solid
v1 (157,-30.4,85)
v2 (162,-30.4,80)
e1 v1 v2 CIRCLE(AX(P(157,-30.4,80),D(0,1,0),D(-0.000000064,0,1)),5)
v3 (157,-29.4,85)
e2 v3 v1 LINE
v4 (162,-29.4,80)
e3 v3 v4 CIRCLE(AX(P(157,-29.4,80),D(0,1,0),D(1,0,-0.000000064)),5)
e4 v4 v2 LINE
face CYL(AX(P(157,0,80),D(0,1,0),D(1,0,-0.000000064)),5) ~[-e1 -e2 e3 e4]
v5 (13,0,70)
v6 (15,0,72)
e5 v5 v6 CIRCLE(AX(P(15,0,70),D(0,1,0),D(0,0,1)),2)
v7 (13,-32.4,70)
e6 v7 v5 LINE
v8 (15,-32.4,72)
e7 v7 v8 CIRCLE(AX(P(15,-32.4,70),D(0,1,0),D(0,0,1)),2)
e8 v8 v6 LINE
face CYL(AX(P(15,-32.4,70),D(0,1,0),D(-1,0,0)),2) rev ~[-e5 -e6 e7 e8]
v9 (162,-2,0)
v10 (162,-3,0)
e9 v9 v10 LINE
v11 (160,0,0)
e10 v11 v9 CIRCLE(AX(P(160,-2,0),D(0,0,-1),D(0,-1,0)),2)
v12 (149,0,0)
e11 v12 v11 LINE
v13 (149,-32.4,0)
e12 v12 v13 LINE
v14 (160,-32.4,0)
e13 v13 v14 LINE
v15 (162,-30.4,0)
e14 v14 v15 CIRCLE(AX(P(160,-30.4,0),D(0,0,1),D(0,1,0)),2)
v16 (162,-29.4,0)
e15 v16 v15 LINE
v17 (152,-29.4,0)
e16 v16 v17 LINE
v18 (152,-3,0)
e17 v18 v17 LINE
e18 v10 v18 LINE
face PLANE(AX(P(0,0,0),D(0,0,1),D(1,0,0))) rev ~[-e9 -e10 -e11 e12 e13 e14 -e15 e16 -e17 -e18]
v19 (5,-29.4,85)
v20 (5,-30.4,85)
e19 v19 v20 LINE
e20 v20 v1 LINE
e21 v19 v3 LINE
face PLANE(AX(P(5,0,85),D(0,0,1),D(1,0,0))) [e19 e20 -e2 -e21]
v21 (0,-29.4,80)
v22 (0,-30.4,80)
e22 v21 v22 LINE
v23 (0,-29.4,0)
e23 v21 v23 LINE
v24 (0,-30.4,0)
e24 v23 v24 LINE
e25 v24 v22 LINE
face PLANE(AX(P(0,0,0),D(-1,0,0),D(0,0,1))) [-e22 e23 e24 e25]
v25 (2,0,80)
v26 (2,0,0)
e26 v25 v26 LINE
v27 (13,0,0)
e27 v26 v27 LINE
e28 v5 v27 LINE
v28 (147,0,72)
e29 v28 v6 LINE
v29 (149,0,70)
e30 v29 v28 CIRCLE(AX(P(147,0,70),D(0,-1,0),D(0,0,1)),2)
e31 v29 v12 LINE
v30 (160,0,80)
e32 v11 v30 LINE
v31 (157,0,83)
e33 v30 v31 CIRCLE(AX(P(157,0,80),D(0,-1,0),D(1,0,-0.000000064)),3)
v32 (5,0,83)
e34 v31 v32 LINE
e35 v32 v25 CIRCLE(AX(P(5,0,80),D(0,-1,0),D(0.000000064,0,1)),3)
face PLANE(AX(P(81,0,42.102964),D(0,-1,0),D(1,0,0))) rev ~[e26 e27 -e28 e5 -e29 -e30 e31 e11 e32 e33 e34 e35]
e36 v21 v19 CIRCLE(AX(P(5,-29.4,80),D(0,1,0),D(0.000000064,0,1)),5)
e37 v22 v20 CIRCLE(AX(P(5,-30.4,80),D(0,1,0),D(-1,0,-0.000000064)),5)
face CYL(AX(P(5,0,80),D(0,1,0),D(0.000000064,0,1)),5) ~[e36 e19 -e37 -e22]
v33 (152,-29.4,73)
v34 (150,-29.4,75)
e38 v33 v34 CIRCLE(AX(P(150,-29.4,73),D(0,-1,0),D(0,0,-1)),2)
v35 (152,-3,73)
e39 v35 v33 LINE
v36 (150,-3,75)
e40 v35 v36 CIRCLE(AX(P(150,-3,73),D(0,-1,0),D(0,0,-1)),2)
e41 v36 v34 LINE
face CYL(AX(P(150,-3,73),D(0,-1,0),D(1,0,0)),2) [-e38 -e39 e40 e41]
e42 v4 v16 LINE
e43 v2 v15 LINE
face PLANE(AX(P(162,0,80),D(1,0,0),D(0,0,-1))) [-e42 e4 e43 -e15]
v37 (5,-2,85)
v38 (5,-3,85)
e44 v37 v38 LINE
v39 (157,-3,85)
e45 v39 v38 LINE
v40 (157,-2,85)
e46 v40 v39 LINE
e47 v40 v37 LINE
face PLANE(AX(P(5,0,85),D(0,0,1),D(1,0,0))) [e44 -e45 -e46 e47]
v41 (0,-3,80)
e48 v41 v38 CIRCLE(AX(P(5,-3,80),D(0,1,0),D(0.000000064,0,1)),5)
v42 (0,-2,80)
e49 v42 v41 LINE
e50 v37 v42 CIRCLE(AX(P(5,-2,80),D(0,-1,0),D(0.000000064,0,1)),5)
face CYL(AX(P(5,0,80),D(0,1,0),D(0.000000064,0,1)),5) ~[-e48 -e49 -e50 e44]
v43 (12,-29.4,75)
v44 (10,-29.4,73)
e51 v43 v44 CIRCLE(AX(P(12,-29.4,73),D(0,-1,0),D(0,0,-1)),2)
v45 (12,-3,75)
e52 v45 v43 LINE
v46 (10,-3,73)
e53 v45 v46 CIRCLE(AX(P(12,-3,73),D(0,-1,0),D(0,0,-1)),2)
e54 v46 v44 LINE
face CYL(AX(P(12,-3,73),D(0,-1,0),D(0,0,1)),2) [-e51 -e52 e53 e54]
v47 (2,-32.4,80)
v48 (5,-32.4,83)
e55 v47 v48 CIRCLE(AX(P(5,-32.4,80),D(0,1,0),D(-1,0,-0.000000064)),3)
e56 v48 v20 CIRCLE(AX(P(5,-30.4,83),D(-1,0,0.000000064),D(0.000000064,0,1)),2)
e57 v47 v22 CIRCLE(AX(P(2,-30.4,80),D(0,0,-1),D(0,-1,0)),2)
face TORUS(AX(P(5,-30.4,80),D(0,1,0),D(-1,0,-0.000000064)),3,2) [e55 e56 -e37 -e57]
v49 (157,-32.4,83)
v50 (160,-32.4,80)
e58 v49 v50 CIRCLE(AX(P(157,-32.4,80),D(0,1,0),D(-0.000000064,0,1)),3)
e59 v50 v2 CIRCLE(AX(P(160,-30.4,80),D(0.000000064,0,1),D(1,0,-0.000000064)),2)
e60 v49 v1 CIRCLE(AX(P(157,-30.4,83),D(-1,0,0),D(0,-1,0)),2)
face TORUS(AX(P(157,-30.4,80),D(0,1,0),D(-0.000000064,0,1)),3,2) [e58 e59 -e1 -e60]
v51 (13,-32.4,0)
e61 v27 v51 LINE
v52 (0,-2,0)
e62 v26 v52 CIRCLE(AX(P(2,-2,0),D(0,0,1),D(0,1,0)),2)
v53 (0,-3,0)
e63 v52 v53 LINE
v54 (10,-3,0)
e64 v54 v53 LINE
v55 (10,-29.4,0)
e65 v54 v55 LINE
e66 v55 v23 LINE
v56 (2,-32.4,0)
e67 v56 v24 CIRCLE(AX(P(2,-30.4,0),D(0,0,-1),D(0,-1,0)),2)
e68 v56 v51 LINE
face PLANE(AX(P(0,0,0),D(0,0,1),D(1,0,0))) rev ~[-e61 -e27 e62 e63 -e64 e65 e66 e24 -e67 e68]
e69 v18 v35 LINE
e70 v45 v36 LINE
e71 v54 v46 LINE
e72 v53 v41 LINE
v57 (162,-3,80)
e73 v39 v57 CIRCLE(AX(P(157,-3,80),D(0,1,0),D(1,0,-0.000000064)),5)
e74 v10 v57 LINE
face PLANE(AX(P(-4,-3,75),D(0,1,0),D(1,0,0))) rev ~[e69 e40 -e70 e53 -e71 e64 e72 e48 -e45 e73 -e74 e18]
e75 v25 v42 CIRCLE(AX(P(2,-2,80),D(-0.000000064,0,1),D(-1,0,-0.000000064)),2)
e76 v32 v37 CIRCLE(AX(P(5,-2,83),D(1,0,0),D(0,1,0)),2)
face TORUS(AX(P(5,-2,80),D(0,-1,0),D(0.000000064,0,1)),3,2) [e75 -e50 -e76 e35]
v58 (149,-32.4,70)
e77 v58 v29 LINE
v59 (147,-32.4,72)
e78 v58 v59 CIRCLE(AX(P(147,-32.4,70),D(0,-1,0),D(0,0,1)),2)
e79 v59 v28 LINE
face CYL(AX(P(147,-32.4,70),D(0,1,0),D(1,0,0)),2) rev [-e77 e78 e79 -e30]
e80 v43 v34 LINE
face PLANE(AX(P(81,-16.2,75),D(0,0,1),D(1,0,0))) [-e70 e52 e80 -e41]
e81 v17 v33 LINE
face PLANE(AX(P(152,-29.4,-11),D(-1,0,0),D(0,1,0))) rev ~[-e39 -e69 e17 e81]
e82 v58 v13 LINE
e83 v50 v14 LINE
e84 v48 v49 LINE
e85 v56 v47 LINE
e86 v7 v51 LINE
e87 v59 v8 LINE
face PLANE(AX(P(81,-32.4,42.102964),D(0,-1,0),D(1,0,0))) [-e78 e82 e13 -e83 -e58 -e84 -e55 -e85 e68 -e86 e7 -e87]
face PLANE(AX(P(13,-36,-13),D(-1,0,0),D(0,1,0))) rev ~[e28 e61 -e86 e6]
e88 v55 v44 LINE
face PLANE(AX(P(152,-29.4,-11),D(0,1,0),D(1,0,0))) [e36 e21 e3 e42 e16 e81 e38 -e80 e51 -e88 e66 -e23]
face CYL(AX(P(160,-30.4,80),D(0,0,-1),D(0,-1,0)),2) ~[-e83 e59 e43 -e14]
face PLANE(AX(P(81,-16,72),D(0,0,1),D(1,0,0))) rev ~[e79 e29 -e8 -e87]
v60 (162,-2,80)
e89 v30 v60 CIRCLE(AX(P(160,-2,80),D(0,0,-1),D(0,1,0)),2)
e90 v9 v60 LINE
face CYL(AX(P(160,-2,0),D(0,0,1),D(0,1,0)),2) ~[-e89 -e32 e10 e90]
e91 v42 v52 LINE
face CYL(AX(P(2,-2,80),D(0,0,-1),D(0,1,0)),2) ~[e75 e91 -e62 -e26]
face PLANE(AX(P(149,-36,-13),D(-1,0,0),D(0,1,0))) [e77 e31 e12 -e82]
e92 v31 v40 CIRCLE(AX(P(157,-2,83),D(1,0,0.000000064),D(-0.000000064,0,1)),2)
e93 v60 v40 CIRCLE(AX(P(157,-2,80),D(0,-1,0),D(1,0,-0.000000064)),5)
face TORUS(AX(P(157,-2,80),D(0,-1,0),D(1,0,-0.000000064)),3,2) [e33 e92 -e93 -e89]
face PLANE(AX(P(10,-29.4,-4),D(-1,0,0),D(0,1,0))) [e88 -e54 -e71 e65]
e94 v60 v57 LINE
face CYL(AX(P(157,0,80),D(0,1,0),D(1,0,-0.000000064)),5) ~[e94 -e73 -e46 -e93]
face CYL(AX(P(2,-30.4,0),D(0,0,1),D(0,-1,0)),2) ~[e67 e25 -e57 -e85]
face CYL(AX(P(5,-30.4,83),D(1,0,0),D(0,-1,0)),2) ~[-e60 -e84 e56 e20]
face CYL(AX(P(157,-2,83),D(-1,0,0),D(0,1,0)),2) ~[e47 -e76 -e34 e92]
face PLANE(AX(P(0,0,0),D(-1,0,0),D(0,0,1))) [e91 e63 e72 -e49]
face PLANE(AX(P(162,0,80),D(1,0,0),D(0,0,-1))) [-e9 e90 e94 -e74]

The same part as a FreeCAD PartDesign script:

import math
import FreeCAD as App
import Part
import Sketcher
Q = App.Units.Quantity


def edges_at(feature, points):
    """Names of the edges that pass closest to the given points."""
    edges = feature.Shape.Edges
    near = lambda p: min(range(len(edges)), key=lambda i: edges[i].distToShape(Part.Vertex(*p))[0])
    return sorted({f"Edge{near(p) + 1}" for p in points})


def add_polygon(sketch, points):
    """Adds a closed chain of lines whose ends are joined by coincident constraints."""
    first, n = sketch.GeometryCount, len(points)
    for a, b in zip(points, points[1:] + points[:1]):
        sketch.addGeometry(Part.LineSegment(App.Vector(*a, 0), App.Vector(*b, 0)), False)
    for i in range(n):
        sketch.addConstraint(Sketcher.Constraint("Coincident", first + i, 2, first + (i + 1) % n, 1))

doc = App.newDocument("Part")
body = doc.addObject("PartDesign::Body", "Body")

# Sketch on XY plane
sketch1 = body.newObject("Sketcher::SketchObject", "Sketch")
sketch1.AttachmentSupport = (doc.getObject("XY_Plane"), [""])
sketch1.MapMode = "FlatFace"
sketch1.AttachmentOffset = App.Placement(App.Vector(0, 0, -13), App.Rotation())
add_polygon(sketch1, [(13, 4), (13, -36), (149, -36), (149, 4)])  # lines 0-3
sketch1.addConstraint([
    Sketcher.Constraint("Vertical", 0),
    Sketcher.Constraint("Horizontal", 1),
    Sketcher.Constraint("Vertical", 2),
    Sketcher.Constraint("Horizontal", 3),
    Sketcher.Constraint("DistanceX", 1, 1, 1, 2, Q("136 mm")),
    Sketcher.Constraint("DistanceY", 0, 2, 0, 1, Q("40 mm")),
    Sketcher.Constraint("DistanceX", -1, 1, 0, 2, Q("13 mm")),
    Sketcher.Constraint("DistanceY", 0, 2, -1, 1, Q("36 mm")),
])
pad1 = body.newObject("PartDesign::Pad", "Pad")
pad1.Profile = sketch1
pad1.Length = 85
body2 = doc.addObject("PartDesign::Body", "Body001")

# Sketch on XY plane
sketch2 = body2.newObject("Sketcher::SketchObject", "Sketch001")
sketch2.AttachmentSupport = (doc.getObject("XY_Plane001"), [""])
sketch2.MapMode = "FlatFace"
sketch2.AttachmentOffset = App.Placement(App.Vector(0, 0, -11), App.Rotation())
add_polygon(sketch2, [(152, -3), (152, -29), (172, -29), (172, -3)])  # lines 0-3
sketch2.addConstraint([
    Sketcher.Constraint("Vertical", 0),
    Sketcher.Constraint("Horizontal", 1),
    Sketcher.Constraint("Vertical", 2),
    Sketcher.Constraint("Horizontal", 3),
    Sketcher.Constraint("DistanceX", 1, 1, 1, 2, Q("20 mm")),
    Sketcher.Constraint("DistanceY", 0, 2, 0, 1, Q("26.4 mm")),
    Sketcher.Constraint("DistanceX", -1, 1, 0, 2, Q("152 mm")),
    Sketcher.Constraint("DistanceY", 2, 2, -1, 1, Q("3 mm")),
])
pad2 = body2.newObject("PartDesign::Pad", "Pad001")
pad2.Profile = sketch2
pad2.Length = 100
body3 = doc.addObject("PartDesign::Body", "Body002")

# Sketch on XY plane
sketch3 = body3.newObject("Sketcher::SketchObject", "Sketch002")
sketch3.AttachmentSupport = (doc.getObject("XY_Plane002"), [""])
sketch3.MapMode = "FlatFace"
sketch3.AttachmentOffset = App.Placement(App.Vector(0, 0, -4), App.Rotation())
add_polygon(sketch3, [(-10, -3), (-10, -29), (10, -29), (10, -3)])  # lines 0-3
sketch3.addConstraint([
    Sketcher.Constraint("Vertical", 0),
    Sketcher.Constraint("Horizontal", 1),
    Sketcher.Constraint("Vertical", 2),
    Sketcher.Constraint("Horizontal", 3),
    Sketcher.Constraint("DistanceX", 1, 1, 1, 2, Q("20 mm")),
    Sketcher.Constraint("DistanceY", 0, 2, 0, 1, Q("26.4 mm")),
    Sketcher.Constraint("DistanceX", 0, 2, -1, 1, Q("10 mm")),
    Sketcher.Constraint("DistanceY", 2, 2, -1, 1, Q("3 mm")),
])
pad3 = body3.newObject("PartDesign::Pad", "Pad002")
pad3.Profile = sketch3
pad3.Length = 92
body4 = doc.addObject("PartDesign::Body", "Body003")

# Sketch on XY plane
sketch4 = body4.newObject("Sketcher::SketchObject", "Sketch003")
sketch4.AttachmentSupport = (doc.getObject("XY_Plane003"), [""])
sketch4.MapMode = "FlatFace"
sketch4.AttachmentOffset = App.Placement(App.Vector(0, 0, 75), App.Rotation())
add_polygon(sketch4, [(-4, -3), (-4, -29), (166, -29), (166, -3)])  # lines 0-3
sketch4.addConstraint([
    Sketcher.Constraint("Vertical", 0),
    Sketcher.Constraint("Horizontal", 1),
    Sketcher.Constraint("Vertical", 2),
    Sketcher.Constraint("Horizontal", 3),
    Sketcher.Constraint("DistanceX", 1, 1, 1, 2, Q("170 mm")),
    Sketcher.Constraint("DistanceY", 0, 2, 0, 1, Q("26.4 mm")),
    Sketcher.Constraint("DistanceX", 0, 2, -1, 1, Q("4 mm")),
    Sketcher.Constraint("DistanceY", 2, 2, -1, 1, Q("3 mm")),
])
pad4 = body4.newObject("PartDesign::Pad", "Pad003")
pad4.Profile = sketch4
pad4.Length = 20
body5 = doc.addObject("PartDesign::Body", "Body004")

# Sketch on XZ plane
sketch5 = body5.newObject("Sketcher::SketchObject", "Sketch004")
sketch5.AttachmentSupport = (doc.getObject("XZ_Plane004"), [""])
sketch5.MapMode = "FlatFace"
sketch5.addGeometry([
    Part.ArcOfCircle(Part.Circle(App.Vector(5, 80, 0), App.Vector(0, 0, 1), 5), math.radians(90), math.radians(180)),  # 0
    Part.LineSegment(App.Vector(0, 80, 0), App.Vector(0, 0, 0)),  # 1
    Part.LineSegment(App.Vector(0, 0, 0), App.Vector(162, 0, 0)),  # 2
    Part.LineSegment(App.Vector(162, 0, 0), App.Vector(162, 80, 0)),  # 3
    Part.ArcOfCircle(Part.Circle(App.Vector(157, 80, 0), App.Vector(0, 0, 1), 5), math.radians(0), math.radians(90)),  # 4
    Part.LineSegment(App.Vector(157, 85, 0), App.Vector(5, 85, 0)),  # 5
], False)
sketch5.addConstraint([
    Sketcher.Constraint("Tangent", 0, 2, 1, 1),
    Sketcher.Constraint("Coincident", 1, 2, 2, 1),
    Sketcher.Constraint("Coincident", 2, 2, 3, 1),
    Sketcher.Constraint("Tangent", 3, 2, 4, 1),
    Sketcher.Constraint("Tangent", 4, 2, 5, 1),
    Sketcher.Constraint("Tangent", 5, 2, 0, 1),
    Sketcher.Constraint("Vertical", 1),
    Sketcher.Constraint("Horizontal", 2),
    Sketcher.Constraint("Vertical", 3),
    Sketcher.Constraint("Horizontal", 5),
    Sketcher.Constraint("Coincident", 1, 2, -1, 1),
    Sketcher.Constraint("Equal", 0, 4),
    Sketcher.Constraint("Radius", 0, Q("5 mm")),
    Sketcher.Constraint("DistanceX", 2, 1, 2, 2, Q("162 mm")),
    Sketcher.Constraint("DistanceY", 1, 2, 1, 1, Q("80 mm")),
])
pad5 = body5.newObject("PartDesign::Pad", "Pad004")
pad5.Profile = sketch5
pad5.Length = 32.4
doc.recompute()

boolean = body5.newObject("PartDesign::Boolean", "Boolean")
boolean.Type = "Cut"
boolean.addObjects([body4])
doc.recompute()

boolean2 = body5.newObject("PartDesign::Boolean", "Boolean001")
boolean2.Type = "Cut"
boolean2.addObjects([body3])
doc.recompute()

boolean3 = body5.newObject("PartDesign::Boolean", "Boolean002")
boolean3.Type = "Cut"
boolean3.addObjects([body2])
doc.recompute()

boolean4 = body5.newObject("PartDesign::Boolean", "Boolean003")
boolean4.Type = "Cut"
boolean4.addObjects([body])
doc.recompute()

fillet = body5.newObject("PartDesign::Fillet", "Fillet")
fillet.Base = (boolean4, edges_at(boolean4, [(152, -16.2, 75)]))
fillet.Radius = 2
doc.recompute()

fillet2 = body5.newObject("PartDesign::Fillet", "Fillet001")
fillet2.Base = (fillet, edges_at(fillet, [(10, -16.2, 75)]))
fillet2.Radius = 2
doc.recompute()

fillet3 = body5.newObject("PartDesign::Fillet", "Fillet002")
fillet3.Base = (fillet2, edges_at(fillet2, [
    (81, -32.4, 85),
    (1.464, -32.4, 83.536),
    (0, -32.4, 40),
    (162, -32.4, 40),
    (160.536, -32.4, 83.536),
]))
fillet3.Radius = 2
doc.recompute()

fillet4 = body5.newObject("PartDesign::Fillet", "Fillet003")
fillet4.Base = (fillet3, edges_at(fillet3, [
    (1.464, 0, 83.536),
    (0, 0, 40),
    (162, 0, 40),
    (160.536, 0, 83.536),
    (81, 0, 85),
]))
fillet4.Radius = 2
doc.recompute()

fillet5 = body5.newObject("PartDesign::Fillet", "Fillet004")
fillet5.Base = (fillet4, edges_at(fillet4, [(13, -16.2, 72), (149, -16.2, 72)]))
fillet5.Radius = 2

doc.recompute()
